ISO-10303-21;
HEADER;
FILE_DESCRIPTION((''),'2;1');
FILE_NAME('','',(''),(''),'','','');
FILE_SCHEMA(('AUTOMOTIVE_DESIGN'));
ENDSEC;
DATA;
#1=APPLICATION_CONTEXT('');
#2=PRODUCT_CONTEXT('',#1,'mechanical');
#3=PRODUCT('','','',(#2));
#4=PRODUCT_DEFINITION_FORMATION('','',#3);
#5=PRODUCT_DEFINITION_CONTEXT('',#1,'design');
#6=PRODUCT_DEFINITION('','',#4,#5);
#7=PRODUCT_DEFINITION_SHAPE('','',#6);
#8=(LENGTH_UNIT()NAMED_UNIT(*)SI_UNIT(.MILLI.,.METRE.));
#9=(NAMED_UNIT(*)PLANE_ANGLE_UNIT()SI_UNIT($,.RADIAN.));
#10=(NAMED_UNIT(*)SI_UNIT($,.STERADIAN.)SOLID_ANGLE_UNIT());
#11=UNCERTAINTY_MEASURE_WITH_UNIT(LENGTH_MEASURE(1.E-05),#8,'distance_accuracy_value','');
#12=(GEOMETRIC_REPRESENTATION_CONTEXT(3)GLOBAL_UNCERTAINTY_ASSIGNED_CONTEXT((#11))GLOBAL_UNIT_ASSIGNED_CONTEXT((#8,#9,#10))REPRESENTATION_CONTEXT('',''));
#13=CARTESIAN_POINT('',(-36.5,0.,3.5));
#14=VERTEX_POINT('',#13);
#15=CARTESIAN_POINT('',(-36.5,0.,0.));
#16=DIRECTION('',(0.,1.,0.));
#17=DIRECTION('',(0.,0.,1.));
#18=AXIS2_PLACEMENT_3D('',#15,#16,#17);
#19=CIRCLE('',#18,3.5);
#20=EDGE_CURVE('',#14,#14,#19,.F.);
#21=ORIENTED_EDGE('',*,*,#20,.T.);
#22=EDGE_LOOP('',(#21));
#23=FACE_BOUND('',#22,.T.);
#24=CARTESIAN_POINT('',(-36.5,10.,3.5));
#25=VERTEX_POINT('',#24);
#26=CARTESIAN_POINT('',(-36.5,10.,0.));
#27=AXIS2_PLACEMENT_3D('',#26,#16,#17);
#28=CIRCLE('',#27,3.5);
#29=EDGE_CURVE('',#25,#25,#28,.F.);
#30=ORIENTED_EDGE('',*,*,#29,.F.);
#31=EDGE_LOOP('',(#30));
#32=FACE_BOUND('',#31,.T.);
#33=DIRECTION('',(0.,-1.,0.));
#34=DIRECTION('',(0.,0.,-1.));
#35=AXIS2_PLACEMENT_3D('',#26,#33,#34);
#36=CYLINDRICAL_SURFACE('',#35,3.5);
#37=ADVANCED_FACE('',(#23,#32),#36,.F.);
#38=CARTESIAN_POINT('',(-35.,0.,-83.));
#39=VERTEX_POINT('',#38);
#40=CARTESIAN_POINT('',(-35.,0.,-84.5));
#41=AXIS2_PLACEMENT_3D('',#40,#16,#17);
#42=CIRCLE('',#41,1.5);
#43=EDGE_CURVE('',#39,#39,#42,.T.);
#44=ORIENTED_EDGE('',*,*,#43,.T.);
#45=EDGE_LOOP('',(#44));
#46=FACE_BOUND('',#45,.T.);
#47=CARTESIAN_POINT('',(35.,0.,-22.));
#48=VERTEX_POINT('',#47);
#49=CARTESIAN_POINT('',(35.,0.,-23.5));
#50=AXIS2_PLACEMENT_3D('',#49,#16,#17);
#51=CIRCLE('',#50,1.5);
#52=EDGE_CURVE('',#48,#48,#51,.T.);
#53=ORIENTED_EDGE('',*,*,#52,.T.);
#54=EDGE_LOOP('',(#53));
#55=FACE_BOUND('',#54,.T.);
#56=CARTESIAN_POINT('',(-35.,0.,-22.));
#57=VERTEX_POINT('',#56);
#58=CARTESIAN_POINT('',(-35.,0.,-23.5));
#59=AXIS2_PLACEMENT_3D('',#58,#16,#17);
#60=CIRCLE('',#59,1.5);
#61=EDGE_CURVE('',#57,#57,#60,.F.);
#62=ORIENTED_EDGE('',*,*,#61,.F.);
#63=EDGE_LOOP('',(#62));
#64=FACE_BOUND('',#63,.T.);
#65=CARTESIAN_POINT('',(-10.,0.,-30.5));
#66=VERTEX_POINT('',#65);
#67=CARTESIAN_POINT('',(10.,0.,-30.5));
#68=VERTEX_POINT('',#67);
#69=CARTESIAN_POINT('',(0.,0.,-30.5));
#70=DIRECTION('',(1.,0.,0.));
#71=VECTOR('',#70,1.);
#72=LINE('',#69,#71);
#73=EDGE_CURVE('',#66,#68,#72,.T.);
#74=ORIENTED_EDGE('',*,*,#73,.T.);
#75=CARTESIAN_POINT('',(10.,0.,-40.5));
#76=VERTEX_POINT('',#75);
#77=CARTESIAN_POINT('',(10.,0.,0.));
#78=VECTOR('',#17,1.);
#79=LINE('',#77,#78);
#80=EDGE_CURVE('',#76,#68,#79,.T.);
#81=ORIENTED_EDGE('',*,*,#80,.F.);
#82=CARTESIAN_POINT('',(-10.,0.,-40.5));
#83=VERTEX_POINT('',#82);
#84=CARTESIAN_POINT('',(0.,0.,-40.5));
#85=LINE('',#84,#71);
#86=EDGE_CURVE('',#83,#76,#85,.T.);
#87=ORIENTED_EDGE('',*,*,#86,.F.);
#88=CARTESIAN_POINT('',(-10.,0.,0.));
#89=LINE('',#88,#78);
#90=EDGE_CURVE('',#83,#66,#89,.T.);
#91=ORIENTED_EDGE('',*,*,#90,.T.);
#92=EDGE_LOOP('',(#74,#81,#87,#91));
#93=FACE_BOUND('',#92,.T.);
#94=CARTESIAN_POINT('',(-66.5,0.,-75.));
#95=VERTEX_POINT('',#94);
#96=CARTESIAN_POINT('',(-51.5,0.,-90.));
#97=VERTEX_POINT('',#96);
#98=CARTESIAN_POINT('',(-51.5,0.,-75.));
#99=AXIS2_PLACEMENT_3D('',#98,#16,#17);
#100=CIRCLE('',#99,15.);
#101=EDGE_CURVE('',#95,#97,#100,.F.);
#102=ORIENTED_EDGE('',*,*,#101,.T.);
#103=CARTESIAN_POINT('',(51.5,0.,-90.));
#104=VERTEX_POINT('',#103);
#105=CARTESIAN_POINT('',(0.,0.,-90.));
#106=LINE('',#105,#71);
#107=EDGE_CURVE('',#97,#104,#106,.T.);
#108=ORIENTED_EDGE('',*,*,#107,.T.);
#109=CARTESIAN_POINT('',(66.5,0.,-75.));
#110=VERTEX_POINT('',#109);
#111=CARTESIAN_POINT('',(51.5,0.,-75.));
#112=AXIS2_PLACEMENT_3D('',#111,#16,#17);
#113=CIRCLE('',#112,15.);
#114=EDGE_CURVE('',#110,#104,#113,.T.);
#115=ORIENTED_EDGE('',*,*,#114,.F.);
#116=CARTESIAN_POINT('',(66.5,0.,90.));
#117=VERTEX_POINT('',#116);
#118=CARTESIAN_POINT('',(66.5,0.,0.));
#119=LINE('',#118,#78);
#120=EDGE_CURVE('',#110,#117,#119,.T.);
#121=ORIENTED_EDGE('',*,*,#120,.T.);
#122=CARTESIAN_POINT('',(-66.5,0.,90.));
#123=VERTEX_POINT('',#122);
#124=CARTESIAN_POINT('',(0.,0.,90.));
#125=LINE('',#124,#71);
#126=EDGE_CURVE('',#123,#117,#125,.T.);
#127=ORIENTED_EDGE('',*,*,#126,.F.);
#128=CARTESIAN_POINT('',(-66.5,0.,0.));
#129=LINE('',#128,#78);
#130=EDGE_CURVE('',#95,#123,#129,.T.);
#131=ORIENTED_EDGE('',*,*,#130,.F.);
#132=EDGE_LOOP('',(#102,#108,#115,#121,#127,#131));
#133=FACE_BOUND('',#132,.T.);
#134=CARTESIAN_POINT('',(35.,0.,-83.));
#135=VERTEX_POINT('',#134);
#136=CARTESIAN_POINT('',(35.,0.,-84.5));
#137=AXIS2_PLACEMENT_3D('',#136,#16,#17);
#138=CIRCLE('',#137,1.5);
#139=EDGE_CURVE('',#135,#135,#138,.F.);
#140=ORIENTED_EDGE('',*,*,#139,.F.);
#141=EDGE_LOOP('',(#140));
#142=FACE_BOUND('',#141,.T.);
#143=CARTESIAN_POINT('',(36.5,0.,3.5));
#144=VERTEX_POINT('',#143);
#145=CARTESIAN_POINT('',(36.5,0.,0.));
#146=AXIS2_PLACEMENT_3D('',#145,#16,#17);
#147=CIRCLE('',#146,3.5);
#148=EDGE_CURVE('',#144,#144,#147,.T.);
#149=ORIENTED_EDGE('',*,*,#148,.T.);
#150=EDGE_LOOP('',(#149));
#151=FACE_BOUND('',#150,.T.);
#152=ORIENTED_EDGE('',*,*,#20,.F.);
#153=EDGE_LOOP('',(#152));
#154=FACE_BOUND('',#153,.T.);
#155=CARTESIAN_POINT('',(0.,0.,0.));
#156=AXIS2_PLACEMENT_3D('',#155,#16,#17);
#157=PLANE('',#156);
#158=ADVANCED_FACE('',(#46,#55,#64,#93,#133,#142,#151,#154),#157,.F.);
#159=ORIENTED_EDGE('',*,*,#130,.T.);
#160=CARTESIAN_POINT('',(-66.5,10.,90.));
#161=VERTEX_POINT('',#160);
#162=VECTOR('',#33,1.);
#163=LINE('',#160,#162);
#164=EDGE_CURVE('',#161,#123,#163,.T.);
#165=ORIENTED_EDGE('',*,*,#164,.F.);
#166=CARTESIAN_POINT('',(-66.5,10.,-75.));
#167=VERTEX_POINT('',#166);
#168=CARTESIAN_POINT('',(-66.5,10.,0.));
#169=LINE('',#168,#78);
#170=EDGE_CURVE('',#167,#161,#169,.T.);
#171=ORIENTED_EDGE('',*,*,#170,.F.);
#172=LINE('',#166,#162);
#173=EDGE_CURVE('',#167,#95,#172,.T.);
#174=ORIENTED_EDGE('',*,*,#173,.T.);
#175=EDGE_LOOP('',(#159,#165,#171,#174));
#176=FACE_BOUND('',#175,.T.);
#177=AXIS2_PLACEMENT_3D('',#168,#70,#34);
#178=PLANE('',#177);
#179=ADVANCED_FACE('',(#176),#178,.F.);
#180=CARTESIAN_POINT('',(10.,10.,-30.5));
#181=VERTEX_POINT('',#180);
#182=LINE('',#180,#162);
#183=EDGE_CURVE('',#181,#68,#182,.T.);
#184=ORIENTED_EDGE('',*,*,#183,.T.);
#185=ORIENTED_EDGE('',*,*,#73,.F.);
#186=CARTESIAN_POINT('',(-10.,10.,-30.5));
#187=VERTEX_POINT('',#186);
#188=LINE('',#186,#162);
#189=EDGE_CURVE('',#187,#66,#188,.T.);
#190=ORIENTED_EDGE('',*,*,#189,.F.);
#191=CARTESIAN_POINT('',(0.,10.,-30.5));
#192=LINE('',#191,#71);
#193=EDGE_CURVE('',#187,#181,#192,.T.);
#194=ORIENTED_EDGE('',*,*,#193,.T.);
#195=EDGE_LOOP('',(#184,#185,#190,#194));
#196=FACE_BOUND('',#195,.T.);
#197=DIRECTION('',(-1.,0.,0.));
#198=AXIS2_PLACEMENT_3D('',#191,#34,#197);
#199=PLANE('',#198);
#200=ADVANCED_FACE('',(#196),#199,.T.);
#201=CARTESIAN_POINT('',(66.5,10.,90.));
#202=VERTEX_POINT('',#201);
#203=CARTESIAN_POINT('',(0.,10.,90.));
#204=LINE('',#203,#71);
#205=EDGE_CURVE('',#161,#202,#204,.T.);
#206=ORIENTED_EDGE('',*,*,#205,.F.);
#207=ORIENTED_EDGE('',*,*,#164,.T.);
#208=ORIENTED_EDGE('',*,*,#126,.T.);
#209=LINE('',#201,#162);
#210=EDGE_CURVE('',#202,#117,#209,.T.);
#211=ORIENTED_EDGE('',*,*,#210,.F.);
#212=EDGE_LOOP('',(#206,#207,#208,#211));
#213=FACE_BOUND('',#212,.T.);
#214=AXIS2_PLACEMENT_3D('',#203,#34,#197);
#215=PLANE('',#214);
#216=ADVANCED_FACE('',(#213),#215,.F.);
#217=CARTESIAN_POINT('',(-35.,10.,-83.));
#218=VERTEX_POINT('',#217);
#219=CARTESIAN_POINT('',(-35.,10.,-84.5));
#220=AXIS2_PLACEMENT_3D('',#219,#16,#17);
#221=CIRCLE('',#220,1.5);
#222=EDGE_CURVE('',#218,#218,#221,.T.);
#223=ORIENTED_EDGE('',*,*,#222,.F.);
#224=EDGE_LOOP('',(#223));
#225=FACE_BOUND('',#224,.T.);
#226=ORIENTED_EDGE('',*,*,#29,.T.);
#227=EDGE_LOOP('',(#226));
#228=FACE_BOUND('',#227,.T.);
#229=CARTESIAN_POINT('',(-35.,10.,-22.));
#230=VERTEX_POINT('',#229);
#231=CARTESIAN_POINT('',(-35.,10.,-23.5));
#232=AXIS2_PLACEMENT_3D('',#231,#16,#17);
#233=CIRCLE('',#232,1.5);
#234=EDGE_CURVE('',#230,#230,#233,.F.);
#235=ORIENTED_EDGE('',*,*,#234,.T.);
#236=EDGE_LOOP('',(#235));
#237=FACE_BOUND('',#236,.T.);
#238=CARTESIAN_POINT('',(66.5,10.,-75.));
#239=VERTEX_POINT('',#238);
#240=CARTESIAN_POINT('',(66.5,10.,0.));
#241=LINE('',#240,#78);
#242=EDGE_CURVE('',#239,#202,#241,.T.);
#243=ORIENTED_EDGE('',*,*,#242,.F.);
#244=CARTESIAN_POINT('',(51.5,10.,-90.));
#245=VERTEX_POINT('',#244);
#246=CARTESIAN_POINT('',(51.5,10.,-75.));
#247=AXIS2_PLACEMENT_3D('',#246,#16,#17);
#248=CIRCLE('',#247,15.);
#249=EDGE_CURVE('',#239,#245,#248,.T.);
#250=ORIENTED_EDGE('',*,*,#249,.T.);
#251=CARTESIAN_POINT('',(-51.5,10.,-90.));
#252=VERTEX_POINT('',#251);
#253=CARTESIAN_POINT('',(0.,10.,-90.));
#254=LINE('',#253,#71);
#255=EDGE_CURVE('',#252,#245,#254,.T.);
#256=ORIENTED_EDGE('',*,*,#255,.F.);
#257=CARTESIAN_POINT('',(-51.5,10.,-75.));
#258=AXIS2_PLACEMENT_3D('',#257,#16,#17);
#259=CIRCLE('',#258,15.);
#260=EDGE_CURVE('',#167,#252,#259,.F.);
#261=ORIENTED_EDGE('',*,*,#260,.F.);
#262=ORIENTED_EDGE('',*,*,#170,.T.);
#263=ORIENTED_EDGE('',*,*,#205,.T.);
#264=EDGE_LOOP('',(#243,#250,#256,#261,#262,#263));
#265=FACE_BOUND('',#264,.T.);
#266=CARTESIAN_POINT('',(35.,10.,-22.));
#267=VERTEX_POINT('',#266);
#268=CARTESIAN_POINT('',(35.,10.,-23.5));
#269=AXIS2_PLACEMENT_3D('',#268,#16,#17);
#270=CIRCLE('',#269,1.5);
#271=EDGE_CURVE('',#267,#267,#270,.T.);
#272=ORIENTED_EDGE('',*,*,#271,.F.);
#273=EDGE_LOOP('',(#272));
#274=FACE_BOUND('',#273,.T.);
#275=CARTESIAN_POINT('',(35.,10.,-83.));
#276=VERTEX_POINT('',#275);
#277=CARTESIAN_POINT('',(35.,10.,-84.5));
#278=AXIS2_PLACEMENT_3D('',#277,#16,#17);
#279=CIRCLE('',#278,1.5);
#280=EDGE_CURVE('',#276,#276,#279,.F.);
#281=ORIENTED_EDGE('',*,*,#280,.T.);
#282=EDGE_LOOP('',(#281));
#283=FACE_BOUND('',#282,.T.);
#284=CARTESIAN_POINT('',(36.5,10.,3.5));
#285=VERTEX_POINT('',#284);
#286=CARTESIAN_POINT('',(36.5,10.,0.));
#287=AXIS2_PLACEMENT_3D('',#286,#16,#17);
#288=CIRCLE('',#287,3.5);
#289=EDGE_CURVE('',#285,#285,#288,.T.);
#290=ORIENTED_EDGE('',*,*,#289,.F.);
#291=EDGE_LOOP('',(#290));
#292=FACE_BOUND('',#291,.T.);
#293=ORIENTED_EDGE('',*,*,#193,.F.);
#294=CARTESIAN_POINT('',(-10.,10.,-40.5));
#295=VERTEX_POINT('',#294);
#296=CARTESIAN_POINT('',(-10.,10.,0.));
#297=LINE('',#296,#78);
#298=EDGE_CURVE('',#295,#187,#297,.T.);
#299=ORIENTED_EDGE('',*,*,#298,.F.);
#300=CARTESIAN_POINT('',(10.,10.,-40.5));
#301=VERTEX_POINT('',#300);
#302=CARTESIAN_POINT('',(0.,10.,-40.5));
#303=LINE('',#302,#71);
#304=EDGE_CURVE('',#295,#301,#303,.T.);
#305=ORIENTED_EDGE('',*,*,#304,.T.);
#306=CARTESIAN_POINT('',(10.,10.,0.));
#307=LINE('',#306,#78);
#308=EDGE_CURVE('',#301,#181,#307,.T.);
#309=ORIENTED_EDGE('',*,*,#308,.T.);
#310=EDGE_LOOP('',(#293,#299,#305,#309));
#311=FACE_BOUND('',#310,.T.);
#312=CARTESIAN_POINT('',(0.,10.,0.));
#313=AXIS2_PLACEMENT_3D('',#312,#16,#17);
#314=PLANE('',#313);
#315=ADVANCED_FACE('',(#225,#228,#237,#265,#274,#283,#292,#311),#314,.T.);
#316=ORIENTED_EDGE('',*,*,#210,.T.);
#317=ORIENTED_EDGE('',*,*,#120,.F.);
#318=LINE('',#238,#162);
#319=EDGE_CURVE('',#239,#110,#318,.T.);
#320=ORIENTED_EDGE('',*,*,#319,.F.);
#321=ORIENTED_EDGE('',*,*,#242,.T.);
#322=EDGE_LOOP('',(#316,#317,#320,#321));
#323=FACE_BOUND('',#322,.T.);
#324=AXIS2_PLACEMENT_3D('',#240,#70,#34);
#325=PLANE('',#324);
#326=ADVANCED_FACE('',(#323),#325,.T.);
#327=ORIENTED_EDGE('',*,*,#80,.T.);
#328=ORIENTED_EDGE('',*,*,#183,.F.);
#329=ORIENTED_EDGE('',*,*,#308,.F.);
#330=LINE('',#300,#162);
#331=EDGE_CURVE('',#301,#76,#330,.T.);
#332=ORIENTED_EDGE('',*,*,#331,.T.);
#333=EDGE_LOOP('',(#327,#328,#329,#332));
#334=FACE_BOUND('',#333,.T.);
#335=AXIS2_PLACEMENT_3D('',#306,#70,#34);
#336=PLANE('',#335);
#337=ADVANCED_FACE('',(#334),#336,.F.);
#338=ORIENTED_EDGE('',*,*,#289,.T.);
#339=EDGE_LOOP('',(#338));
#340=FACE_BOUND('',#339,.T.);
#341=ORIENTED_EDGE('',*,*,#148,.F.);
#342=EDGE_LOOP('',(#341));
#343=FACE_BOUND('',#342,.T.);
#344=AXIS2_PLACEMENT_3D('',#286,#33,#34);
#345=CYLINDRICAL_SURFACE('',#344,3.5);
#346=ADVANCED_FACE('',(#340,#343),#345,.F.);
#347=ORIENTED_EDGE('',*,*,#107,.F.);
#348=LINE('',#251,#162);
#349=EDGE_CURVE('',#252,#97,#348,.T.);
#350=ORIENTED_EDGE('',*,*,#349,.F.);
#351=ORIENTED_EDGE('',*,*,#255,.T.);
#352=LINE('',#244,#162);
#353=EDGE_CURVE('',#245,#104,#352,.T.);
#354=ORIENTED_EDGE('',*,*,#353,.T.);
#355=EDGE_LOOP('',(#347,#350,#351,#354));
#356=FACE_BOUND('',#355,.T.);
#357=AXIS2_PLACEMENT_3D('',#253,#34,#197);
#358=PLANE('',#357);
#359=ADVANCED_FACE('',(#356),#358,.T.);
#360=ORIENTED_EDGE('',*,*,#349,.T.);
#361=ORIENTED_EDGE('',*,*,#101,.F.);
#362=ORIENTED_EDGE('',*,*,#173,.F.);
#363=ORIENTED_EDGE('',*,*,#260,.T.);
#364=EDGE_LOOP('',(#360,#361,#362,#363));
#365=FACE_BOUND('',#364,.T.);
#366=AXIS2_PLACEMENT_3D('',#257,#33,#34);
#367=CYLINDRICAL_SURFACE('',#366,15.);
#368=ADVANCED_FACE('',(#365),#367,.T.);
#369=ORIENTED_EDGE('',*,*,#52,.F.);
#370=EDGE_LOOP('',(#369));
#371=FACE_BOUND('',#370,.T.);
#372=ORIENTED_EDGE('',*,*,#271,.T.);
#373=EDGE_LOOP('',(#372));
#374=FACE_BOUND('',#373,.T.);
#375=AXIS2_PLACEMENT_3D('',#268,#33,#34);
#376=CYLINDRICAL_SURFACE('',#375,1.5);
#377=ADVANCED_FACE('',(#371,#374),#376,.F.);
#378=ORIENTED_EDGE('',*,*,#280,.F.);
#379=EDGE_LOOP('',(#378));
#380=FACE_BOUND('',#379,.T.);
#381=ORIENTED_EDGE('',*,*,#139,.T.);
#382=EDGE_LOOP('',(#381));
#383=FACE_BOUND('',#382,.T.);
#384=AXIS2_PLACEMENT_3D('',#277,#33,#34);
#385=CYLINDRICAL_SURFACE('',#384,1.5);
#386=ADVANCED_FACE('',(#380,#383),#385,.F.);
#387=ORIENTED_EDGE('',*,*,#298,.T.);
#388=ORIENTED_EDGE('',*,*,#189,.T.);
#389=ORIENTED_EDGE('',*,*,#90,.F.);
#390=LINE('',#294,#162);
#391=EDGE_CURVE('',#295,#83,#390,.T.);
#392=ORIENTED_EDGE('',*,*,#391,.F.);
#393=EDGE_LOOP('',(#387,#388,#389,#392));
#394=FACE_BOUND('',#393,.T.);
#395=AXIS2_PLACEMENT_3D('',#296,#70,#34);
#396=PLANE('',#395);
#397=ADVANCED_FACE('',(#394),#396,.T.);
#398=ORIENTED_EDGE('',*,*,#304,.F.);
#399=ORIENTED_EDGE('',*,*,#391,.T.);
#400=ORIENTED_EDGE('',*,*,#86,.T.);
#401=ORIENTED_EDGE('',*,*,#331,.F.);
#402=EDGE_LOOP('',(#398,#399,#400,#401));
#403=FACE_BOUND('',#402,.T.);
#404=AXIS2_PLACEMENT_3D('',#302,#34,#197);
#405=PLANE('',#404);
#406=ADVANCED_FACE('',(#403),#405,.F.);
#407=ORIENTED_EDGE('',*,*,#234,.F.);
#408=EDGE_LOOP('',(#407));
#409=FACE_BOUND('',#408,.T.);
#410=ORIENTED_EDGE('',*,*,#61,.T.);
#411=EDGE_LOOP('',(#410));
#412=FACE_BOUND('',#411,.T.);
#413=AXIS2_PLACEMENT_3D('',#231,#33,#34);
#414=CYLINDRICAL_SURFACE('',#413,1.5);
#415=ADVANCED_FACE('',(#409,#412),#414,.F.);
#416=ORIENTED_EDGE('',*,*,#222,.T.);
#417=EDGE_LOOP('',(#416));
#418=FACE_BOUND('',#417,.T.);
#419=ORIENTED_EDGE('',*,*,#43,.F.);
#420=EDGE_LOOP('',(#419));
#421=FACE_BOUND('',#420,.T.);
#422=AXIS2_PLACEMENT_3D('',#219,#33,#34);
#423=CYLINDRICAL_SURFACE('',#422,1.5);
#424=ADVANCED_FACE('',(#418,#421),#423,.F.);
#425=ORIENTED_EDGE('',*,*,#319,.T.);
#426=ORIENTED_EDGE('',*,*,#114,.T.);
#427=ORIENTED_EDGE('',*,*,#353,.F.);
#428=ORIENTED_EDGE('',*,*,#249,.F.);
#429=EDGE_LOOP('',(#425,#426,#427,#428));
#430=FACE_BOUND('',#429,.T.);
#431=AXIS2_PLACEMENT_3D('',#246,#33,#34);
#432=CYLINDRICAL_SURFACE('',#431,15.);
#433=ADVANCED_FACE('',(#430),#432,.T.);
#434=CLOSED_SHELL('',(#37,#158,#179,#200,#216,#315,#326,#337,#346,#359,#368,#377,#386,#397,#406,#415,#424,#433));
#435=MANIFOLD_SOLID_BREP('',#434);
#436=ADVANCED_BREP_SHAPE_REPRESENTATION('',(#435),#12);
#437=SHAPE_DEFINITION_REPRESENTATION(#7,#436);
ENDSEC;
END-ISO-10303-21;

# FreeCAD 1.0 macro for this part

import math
import FreeCAD as App
import Part
import Sketcher

V = App.Vector
Q = App.Units.Quantity

doc = App.newDocument("Part")
body = doc.addObject("PartDesign::Body", "Body")

sketch1 = doc.addObject("Sketcher::SketchObject", "Sketch")
body.addObject(sketch1)
sketch1.AttachmentSupport = (doc.XZ_Plane, [""])
sketch1.MapMode = "FlatFace"
sketch1.addGeometry([
    Part.LineSegment(V(-66.5, 90, 0), V(66.5, 90, 0)),
    Part.LineSegment(V(66.5, 90, 0), V(66.5, -75, 0)),
    Part.ArcOfCircle(Part.Circle(V(51.5, -75, 0), V(0, 0, 1), 15), math.radians(-41), math.radians(0)),
    Part.ArcOfCircle(Part.Circle(V(51.5, -75, 0), V(0, 0, 1), 15), math.radians(-90), math.radians(-41)),
    Part.LineSegment(V(51.5, -90, 0), V(-51.5, -90, 0)),
    Part.ArcOfCircle(Part.Circle(V(-51.5, -75, 0), V(0, 0, 1), 15), math.radians(-138), math.radians(-90)),
    Part.ArcOfCircle(Part.Circle(V(-51.5, -75, 0), V(0, 0, 1), 15), math.radians(-180), math.radians(-138)),
    Part.LineSegment(V(-66.5, -75, 0), V(-66.5, 90, 0)),
    Part.Circle(V(-36.5, 0, 0), V(0, 0, 1), 3.5),
    Part.Circle(V(-35, -23.5, 0), V(0, 0, 1), 1.5),
    Part.Circle(V(36.5, 0, 0), V(0, 0, 1), 3.5),
    Part.LineSegment(V(10, -30.5, 0), V(-10, -30.5, 0)),
    Part.LineSegment(V(-10, -30.5, 0), V(-10, -40.5, 0)),
    Part.LineSegment(V(-10, -40.5, 0), V(10, -40.5, 0)),
    Part.LineSegment(V(10, -40.5, 0), V(10, -30.5, 0)),
    Part.Circle(V(35, -23.5, 0), V(0, 0, 1), 1.5),
    Part.Circle(V(-35, -84.5, 0), V(0, 0, 1), 1.5),
    Part.Circle(V(35, -84.5, 0), V(0, 0, 1), 1.5),
], False)
sketch1.addConstraint([
    Sketcher.Constraint("Coincident", 0, 2, 1, 1),
    Sketcher.Constraint("Tangent", 1, 2, 2, 2),
    Sketcher.Constraint("Tangent", 2, 1, 3, 2),
    Sketcher.Constraint("Tangent", 3, 1, 4, 1),
    Sketcher.Constraint("Tangent", 4, 2, 5, 2),
    Sketcher.Constraint("Tangent", 5, 1, 6, 2),
    Sketcher.Constraint("Tangent", 6, 1, 7, 1),
    Sketcher.Constraint("Coincident", 7, 2, 0, 1),
    Sketcher.Constraint("Coincident", 11, 2, 12, 1),
    Sketcher.Constraint("Coincident", 12, 2, 13, 1),
    Sketcher.Constraint("Coincident", 13, 2, 14, 1),
    Sketcher.Constraint("Coincident", 14, 2, 11, 1),
    Sketcher.Constraint("Horizontal", 0),
    Sketcher.Constraint("Vertical", 1),
    Sketcher.Constraint("Horizontal", 4),
    Sketcher.Constraint("Vertical", 7),
    Sketcher.Constraint("Horizontal", 11),
    Sketcher.Constraint("Vertical", 12),
    Sketcher.Constraint("Horizontal", 13),
    Sketcher.Constraint("Vertical", 14),
    Sketcher.Constraint("Equal", 2, 3),
    Sketcher.Constraint("Equal", 3, 5),
    Sketcher.Constraint("Equal", 5, 6),
    Sketcher.Constraint("Equal", 8, 10),
    Sketcher.Constraint("Equal", 9, 15),
    Sketcher.Constraint("Equal", 15, 16),
    Sketcher.Constraint("Equal", 16, 17),
    Sketcher.Constraint("Symmetric", 8, 3, 10, 3, -1, 1),
    Sketcher.Constraint("Symmetric", 9, 3, 15, 3, -2),
    Sketcher.Constraint("Symmetric", 16, 3, 17, 3, -2),
    Sketcher.Constraint("PointOnObject", 8, 3, -1),
    Sketcher.Constraint("Vertical", 9, 3, 16, 3),
    Sketcher.Constraint("Diameter", 8, Q("7 mm")),
    Sketcher.Constraint("Diameter", 9, Q("3 mm")),
    Sketcher.Constraint("Radius", 2, Q("15 mm")),
    Sketcher.Constraint("DistanceX", 0, 1, 0, 2, Q("133 mm")),
    Sketcher.Constraint("DistanceX", 11, 2, 11, 1, Q("20 mm")),
    Sketcher.Constraint("DistanceY", 1, 2, 1, 1, Q("165 mm")),
    Sketcher.Constraint("DistanceY", 12, 2, 12, 1, Q("10 mm")),
    Sketcher.Constraint("DistanceY", 2, 3, -1, 1, Q("75 mm")),
    Sketcher.Constraint("DistanceX", 9, 3, -1, 1, Q("35 mm")),
    Sketcher.Constraint("DistanceX", 11, 2, -1, 1, Q("10 mm")),
    Sketcher.Constraint("DistanceX", 5, 3, 8, 3, Q("15 mm")),
    Sketcher.Constraint("DistanceX", 8, 3, 10, 3, Q("73 mm")),
    Sketcher.Constraint("DistanceY", 16, 3, 9, 3, Q("61 mm")),
    Sketcher.Constraint("DistanceY", 11, 2, 9, 3, Q("7 mm")),
    Sketcher.Constraint("DistanceY", 9, 3, -1, 1, Q("23.5 mm")),
    Sketcher.Constraint("DistanceX", -1, 1, 2, 1, Q("62.748695 mm")),
    Sketcher.Constraint("DistanceX", 5, 1, -1, 1, Q("62.643247 mm")),
])
pad1 = doc.addObject("PartDesign::Pad", "Pad")
body.addObject(pad1)
pad1.Profile = sketch1
pad1.Length = 10
pad1.Reversed = True

doc.recompute()
